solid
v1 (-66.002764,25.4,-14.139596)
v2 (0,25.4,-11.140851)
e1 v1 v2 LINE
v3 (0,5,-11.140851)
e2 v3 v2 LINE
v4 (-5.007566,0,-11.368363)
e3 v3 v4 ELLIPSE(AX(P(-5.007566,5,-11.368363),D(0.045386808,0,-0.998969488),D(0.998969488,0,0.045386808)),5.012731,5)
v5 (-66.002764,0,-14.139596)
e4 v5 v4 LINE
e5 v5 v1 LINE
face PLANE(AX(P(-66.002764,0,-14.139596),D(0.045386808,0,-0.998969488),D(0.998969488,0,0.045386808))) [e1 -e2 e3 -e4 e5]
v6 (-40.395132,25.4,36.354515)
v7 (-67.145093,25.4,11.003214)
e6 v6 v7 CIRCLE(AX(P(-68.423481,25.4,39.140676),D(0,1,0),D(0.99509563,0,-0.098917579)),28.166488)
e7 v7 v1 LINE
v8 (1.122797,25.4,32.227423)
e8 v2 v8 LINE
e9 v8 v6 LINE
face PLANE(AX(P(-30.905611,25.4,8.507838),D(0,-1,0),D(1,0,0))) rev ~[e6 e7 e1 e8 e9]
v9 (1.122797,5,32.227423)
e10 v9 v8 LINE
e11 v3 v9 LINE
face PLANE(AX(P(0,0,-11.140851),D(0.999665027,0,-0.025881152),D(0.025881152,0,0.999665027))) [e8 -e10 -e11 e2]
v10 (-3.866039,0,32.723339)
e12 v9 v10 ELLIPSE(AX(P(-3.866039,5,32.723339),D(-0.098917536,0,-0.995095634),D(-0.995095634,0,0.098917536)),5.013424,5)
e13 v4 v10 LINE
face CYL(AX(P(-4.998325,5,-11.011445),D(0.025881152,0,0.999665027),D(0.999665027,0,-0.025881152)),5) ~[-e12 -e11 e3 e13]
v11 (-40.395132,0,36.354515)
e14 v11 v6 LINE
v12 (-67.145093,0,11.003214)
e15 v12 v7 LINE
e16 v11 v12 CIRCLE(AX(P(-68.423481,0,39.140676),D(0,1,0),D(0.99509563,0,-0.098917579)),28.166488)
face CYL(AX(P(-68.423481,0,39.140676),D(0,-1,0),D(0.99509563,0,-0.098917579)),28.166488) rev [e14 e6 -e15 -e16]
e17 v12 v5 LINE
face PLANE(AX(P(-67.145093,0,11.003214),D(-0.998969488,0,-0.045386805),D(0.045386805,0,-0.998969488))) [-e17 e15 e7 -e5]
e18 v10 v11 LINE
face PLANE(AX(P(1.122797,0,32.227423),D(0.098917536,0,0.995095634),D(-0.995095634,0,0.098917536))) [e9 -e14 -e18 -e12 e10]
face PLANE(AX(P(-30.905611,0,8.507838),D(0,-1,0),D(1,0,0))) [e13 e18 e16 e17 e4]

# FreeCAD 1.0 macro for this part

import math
import FreeCAD as App
import Part
import Sketcher

V = App.Vector


def edges_at(feature, points):
    """Names of the edges that pass closest to the given points."""
    edges = feature.Shape.Edges
    near = lambda p: min(range(len(edges)), key=lambda i: edges[i].distToShape(Part.Vertex(*p))[0])
    return sorted({f"Edge{near(p) + 1}" for p in points})

doc = App.newDocument("Part")
body = doc.addObject("PartDesign::Body", "Body")

sketch1 = doc.addObject("Sketcher::SketchObject", "Sketch")
body.addObject(sketch1)
sketch1.AttachmentSupport = (doc.XZ_Plane, [""])
sketch1.MapMode = "FlatFace"
sketch1.addGeometry(Part.ArcOfCircle(Part.Circle(V(-68, 39, 0), V(0, 0, 1), 28), math.radians(-87), math.radians(-6)), False)
sketch1.addGeometry(Part.LineSegment(V(-67, 11, 0), V(-66, -14, 0)), False)
sketch1.addGeometry(Part.LineSegment(V(-66, -14, 0), V(0, -11, 0)), False)
sketch1.addGeometry(Part.LineSegment(V(0, -11, 0), V(1, 32, 0)), False)
sketch1.addGeometry(Part.LineSegment(V(1, 32, 0), V(-40, 36, 0)), False)
sketch1.addConstraint(Sketcher.Constraint("Coincident", 0, 1, 1, 1))
sketch1.addConstraint(Sketcher.Constraint("Coincident", 1, 2, 2, 1))
sketch1.addConstraint(Sketcher.Constraint("Coincident", 2, 2, 3, 1))
sketch1.addConstraint(Sketcher.Constraint("Coincident", 3, 2, 4, 1))
sketch1.addConstraint(Sketcher.Constraint("Coincident", 4, 2, 0, 2))
sketch1.addConstraint(Sketcher.Constraint("PointOnObject", 2, 2, -2))
sketch1.addConstraint(Sketcher.Constraint("Perpendicular", 1, 2))
sketch1.addConstraint(Sketcher.Constraint("Radius", 0, 28.166488))
sketch1.addConstraint(Sketcher.Constraint("DistanceY", 0, 1, 4, 2, 25.351301))
sketch1.addConstraint(Sketcher.Constraint("Distance", 2, 66.070851))
sketch1.addConstraint(Sketcher.Constraint("Distance", 4, 41.722552))
sketch1.addConstraint(Sketcher.Constraint("DistanceX", 0, 3, -1, 1, 68.423481))
sketch1.addConstraint(Sketcher.Constraint("DistanceY", 2, 2, -1, 1, 11.140851))
sketch1.addConstraint(Sketcher.Constraint("DistanceY", 0, 1, 0, 3, 28.137462))
sketch1.addConstraint(Sketcher.Constraint("DistanceY", 1, 2, 0, 1, 25.14281))
sketch1.addConstraint(Sketcher.Constraint("DistanceX", 0, 1, 3, 2, 68.26789))
pad1 = doc.addObject("PartDesign::Pad", "Pad")
body.addObject(pad1)
pad1.Profile = sketch1
pad1.Length = 25.4
pad1.Reversed = True
doc.recompute()

fillet = doc.addObject("PartDesign::Fillet", "Fillet")
body.addObject(fillet)
fillet.Base = (pad1, edges_at(pad1, [(0.561, 0, 10.543)]))
fillet.Radius = 5

doc.recompute()
